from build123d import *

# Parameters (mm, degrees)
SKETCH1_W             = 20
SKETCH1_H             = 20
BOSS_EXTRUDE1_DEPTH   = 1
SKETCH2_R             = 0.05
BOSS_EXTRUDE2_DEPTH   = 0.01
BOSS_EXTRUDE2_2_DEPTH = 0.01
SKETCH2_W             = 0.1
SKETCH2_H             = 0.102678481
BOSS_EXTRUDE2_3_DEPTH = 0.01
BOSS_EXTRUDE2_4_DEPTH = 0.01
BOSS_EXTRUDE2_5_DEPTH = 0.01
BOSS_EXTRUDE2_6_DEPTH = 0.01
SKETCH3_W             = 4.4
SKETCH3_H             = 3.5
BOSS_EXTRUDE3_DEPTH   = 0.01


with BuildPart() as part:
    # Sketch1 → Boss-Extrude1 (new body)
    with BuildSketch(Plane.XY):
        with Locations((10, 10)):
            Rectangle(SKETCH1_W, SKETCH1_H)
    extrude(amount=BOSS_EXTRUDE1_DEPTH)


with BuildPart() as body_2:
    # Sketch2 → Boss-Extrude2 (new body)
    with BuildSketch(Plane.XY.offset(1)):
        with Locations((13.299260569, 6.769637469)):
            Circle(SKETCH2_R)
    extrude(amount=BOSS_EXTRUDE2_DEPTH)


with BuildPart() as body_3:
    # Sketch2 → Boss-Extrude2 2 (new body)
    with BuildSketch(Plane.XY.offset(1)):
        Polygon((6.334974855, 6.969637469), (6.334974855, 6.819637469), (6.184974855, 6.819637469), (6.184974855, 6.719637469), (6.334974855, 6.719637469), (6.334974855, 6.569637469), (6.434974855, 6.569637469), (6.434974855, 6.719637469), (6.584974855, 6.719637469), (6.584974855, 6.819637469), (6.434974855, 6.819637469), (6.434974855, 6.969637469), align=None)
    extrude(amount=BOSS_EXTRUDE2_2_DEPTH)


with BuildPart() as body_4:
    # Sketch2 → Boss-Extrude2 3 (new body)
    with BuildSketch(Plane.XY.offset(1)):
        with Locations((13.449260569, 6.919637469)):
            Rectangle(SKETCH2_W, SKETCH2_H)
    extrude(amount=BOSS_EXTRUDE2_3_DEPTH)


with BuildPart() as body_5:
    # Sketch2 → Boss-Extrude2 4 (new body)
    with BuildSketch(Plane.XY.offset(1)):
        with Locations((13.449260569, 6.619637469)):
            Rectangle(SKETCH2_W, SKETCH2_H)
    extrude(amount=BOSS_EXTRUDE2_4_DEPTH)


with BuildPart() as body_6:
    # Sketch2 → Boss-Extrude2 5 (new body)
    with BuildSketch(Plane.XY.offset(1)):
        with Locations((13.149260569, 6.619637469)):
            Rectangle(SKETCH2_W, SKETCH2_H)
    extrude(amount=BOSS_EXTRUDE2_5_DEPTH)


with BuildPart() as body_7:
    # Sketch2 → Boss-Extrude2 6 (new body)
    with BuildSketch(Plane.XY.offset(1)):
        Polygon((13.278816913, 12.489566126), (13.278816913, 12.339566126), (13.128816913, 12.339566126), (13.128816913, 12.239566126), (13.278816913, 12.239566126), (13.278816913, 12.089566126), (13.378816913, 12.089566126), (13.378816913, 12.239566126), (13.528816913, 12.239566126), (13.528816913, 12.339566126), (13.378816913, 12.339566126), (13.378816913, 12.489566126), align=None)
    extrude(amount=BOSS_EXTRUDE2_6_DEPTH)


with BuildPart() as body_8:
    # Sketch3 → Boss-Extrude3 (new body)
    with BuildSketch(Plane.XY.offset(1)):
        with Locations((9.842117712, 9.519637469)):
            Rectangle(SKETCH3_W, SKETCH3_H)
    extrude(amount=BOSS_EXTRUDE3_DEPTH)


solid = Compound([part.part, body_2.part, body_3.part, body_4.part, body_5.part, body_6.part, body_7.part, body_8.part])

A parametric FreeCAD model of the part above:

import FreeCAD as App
import Part
import Sketcher
from FreeCAD import Vector

doc = App.newDocument("Part")
body = doc.addObject("PartDesign::Body", "Body")

# Sketch on XY plane
sketch1 = doc.addObject("Sketcher::SketchObject", "Sketch")
body.addObject(sketch1)
sketch1.AttachmentSupport = (doc.XY_Plane, [""])
sketch1.MapMode = "FlatFace"
sketch1.addGeometry([
    Part.LineSegment(Vector(0, 20, 0), Vector(0, 0, 0)),
    Part.LineSegment(Vector(0, 0, 0), Vector(20, 0, 0)),
    Part.LineSegment(Vector(20, 0, 0), Vector(20, 20, 0)),
    Part.LineSegment(Vector(20, 20, 0), Vector(0, 20, 0)),
], False)
sketch1.addConstraint([
    Sketcher.Constraint("Coincident", 0, 2, 1, 1),
    Sketcher.Constraint("Coincident", 1, 2, 2, 1),
    Sketcher.Constraint("Coincident", 2, 2, 3, 1),
    Sketcher.Constraint("Coincident", 3, 2, 0, 1),
    Sketcher.Constraint("Vertical", 0),
    Sketcher.Constraint("Horizontal", 1),
    Sketcher.Constraint("Vertical", 2),
    Sketcher.Constraint("Horizontal", 3),
    Sketcher.Constraint("Coincident", 0, 2, -1, 1),
    Sketcher.Constraint("Equal", 3, 0),
    Sketcher.Constraint("DistanceX", 1, 1, 1, 2, 20.0),
])
pad1 = doc.addObject("PartDesign::Pad", "Pad")
body.addObject(pad1)
pad1.Profile = sketch1
pad1.Length = 1
body2 = doc.addObject("PartDesign::Body", "Body001")

# Sketch on XY plane
sketch2 = doc.addObject("Sketcher::SketchObject", "Sketch001")
body2.addObject(sketch2)
sketch2.AttachmentSupport = (doc.getObject("XY_Plane001"), [""])
sketch2.MapMode = "FlatFace"
sketch2.AttachmentOffset = App.Placement(Vector(0, 0, 1), App.Rotation())
sketch2.addGeometry(Part.Circle(Vector(13.299261, 6.769637, 0), Vector(0, 0, 1), 0.05), False)
sketch2.addConstraint([
    Sketcher.Constraint("Diameter", 0, 0.1),
    Sketcher.Constraint("DistanceX", -1, 1, 0, 3, 13.299261),
    Sketcher.Constraint("DistanceY", -1, 1, 0, 3, 6.769637),
])
pad2 = doc.addObject("PartDesign::Pad", "Pad001")
body2.addObject(pad2)
pad2.Profile = sketch2
pad2.Length = 0.01
body3 = doc.addObject("PartDesign::Body", "Body002")

# Sketch on XY plane
sketch3 = doc.addObject("Sketcher::SketchObject", "Sketch002")
body3.addObject(sketch3)
sketch3.AttachmentSupport = (doc.getObject("XY_Plane002"), [""])
sketch3.MapMode = "FlatFace"
sketch3.AttachmentOffset = App.Placement(Vector(0, 0, 1), App.Rotation())
sketch3.addGeometry([
    Part.LineSegment(Vector(6.334975, 6.969637, 0), Vector(6.334975, 6.819637, 0)),  # 0
    Part.LineSegment(Vector(6.334975, 6.819637, 0), Vector(6.184975, 6.819637, 0)),  # 1
    Part.LineSegment(Vector(6.184975, 6.819637, 0), Vector(6.184975, 6.719637, 0)),  # 2
    Part.LineSegment(Vector(6.184975, 6.719637, 0), Vector(6.334975, 6.719637, 0)),  # 3
    Part.LineSegment(Vector(6.334975, 6.719637, 0), Vector(6.334975, 6.569637, 0)),  # 4
    Part.LineSegment(Vector(6.334975, 6.569637, 0), Vector(6.434975, 6.569637, 0)),  # 5
    Part.LineSegment(Vector(6.434975, 6.569637, 0), Vector(6.434975, 6.719637, 0)),  # 6
    Part.LineSegment(Vector(6.434975, 6.719637, 0), Vector(6.584975, 6.719637, 0)),  # 7
    Part.LineSegment(Vector(6.584975, 6.719637, 0), Vector(6.584975, 6.819637, 0)),  # 8
    Part.LineSegment(Vector(6.584975, 6.819637, 0), Vector(6.434975, 6.819637, 0)),  # 9
    Part.LineSegment(Vector(6.434975, 6.819637, 0), Vector(6.434975, 6.969637, 0)),  # 10
    Part.LineSegment(Vector(6.434975, 6.969637, 0), Vector(6.334975, 6.969637, 0)),  # 11
], False)
sketch3.addConstraint([
    Sketcher.Constraint("Coincident", 0, 2, 1, 1),
    Sketcher.Constraint("Coincident", 1, 2, 2, 1),
    Sketcher.Constraint("Coincident", 2, 2, 3, 1),
    Sketcher.Constraint("Coincident", 3, 2, 4, 1),
    Sketcher.Constraint("Coincident", 4, 2, 5, 1),
    Sketcher.Constraint("Coincident", 5, 2, 6, 1),
    Sketcher.Constraint("Coincident", 6, 2, 7, 1),
    Sketcher.Constraint("Coincident", 7, 2, 8, 1),
    Sketcher.Constraint("Coincident", 8, 2, 9, 1),
    Sketcher.Constraint("Coincident", 9, 2, 10, 1),
    Sketcher.Constraint("Coincident", 10, 2, 11, 1),
    Sketcher.Constraint("Coincident", 11, 2, 0, 1),
    Sketcher.Constraint("Vertical", 0),
    Sketcher.Constraint("Horizontal", 1),
    Sketcher.Constraint("Vertical", 2),
    Sketcher.Constraint("Horizontal", 3),
    Sketcher.Constraint("Vertical", 4),
    Sketcher.Constraint("Horizontal", 5),
    Sketcher.Constraint("Vertical", 6),
    Sketcher.Constraint("Horizontal", 7),
    Sketcher.Constraint("Vertical", 8),
    Sketcher.Constraint("Horizontal", 9),
    Sketcher.Constraint("Vertical", 10),
    Sketcher.Constraint("Horizontal", 11),
    Sketcher.Constraint("Horizontal", 3, 2, 6, 2),
    Sketcher.Constraint("Horizontal", 1, 2, 8, 2),
    Sketcher.Constraint("Vertical", 0, 2, 3, 2),
    Sketcher.Constraint("Vertical", 6, 2, 9, 2),
    Sketcher.Constraint("Equal", 3, 7),
    Sketcher.Constraint("Equal", 9, 0),
    Sketcher.Constraint("Equal", 11, 2),
    Sketcher.Constraint("Equal", 0, 4),
    Sketcher.Constraint("DistanceX", 5, 1, 5, 2, 0.1),
    Sketcher.Constraint("DistanceX", 1, 2, 1, 1, 0.15),
    Sketcher.Constraint("DistanceX", -1, 1, 0, 2, 6.334975),
    Sketcher.Constraint("DistanceY", -1, 1, 0, 2, 6.819637),
])
pad3 = doc.addObject("PartDesign::Pad", "Pad002")
body3.addObject(pad3)
pad3.Profile = sketch3
pad3.Length = 0.01
body4 = doc.addObject("PartDesign::Body", "Body003")

# Sketch on XY plane
sketch4 = doc.addObject("Sketcher::SketchObject", "Sketch003")
body4.addObject(sketch4)
sketch4.AttachmentSupport = (doc.getObject("XY_Plane003"), [""])
sketch4.MapMode = "FlatFace"
sketch4.AttachmentOffset = App.Placement(Vector(0, 0, 1), App.Rotation())
sketch4.addGeometry([
    Part.LineSegment(Vector(13.399261, 6.970977, 0), Vector(13.399261, 6.868298, 0)),
    Part.LineSegment(Vector(13.399261, 6.868298, 0), Vector(13.499261, 6.868298, 0)),
    Part.LineSegment(Vector(13.499261, 6.868298, 0), Vector(13.499261, 6.970977, 0)),
    Part.LineSegment(Vector(13.499261, 6.970977, 0), Vector(13.399261, 6.970977, 0)),
], False)
sketch4.addConstraint([
    Sketcher.Constraint("Coincident", 0, 2, 1, 1),
    Sketcher.Constraint("Coincident", 1, 2, 2, 1),
    Sketcher.Constraint("Coincident", 2, 2, 3, 1),
    Sketcher.Constraint("Coincident", 3, 2, 0, 1),
    Sketcher.Constraint("Vertical", 0),
    Sketcher.Constraint("Horizontal", 1),
    Sketcher.Constraint("Vertical", 2),
    Sketcher.Constraint("Horizontal", 3),
    Sketcher.Constraint("DistanceX", 1, 1, 1, 2, 0.1),
    Sketcher.Constraint("DistanceY", 0, 2, 0, 1, 0.102678),
    Sketcher.Constraint("DistanceY", -1, 1, 0, 2, 6.868298),
    Sketcher.Constraint("DistanceX", -1, 1, 0, 2, 13.399261),
])
pad4 = doc.addObject("PartDesign::Pad", "Pad003")
body4.addObject(pad4)
pad4.Profile = sketch4
pad4.Length = 0.01
body5 = doc.addObject("PartDesign::Body", "Body004")

# Sketch on XY plane
sketch5 = doc.addObject("Sketcher::SketchObject", "Sketch004")
body5.addObject(sketch5)
sketch5.AttachmentSupport = (doc.getObject("XY_Plane004"), [""])
sketch5.MapMode = "FlatFace"
sketch5.AttachmentOffset = App.Placement(Vector(0, 0, 1), App.Rotation())
sketch5.addGeometry([
    Part.LineSegment(Vector(13.399261, 6.670977, 0), Vector(13.399261, 6.568298, 0)),
    Part.LineSegment(Vector(13.399261, 6.568298, 0), Vector(13.499261, 6.568298, 0)),
    Part.LineSegment(Vector(13.499261, 6.568298, 0), Vector(13.499261, 6.670977, 0)),
    Part.LineSegment(Vector(13.499261, 6.670977, 0), Vector(13.399261, 6.670977, 0)),
], False)
sketch5.addConstraint([
    Sketcher.Constraint("Coincident", 0, 2, 1, 1),
    Sketcher.Constraint("Coincident", 1, 2, 2, 1),
    Sketcher.Constraint("Coincident", 2, 2, 3, 1),
    Sketcher.Constraint("Coincident", 3, 2, 0, 1),
    Sketcher.Constraint("Vertical", 0),
    Sketcher.Constraint("Horizontal", 1),
    Sketcher.Constraint("Vertical", 2),
    Sketcher.Constraint("Horizontal", 3),
    Sketcher.Constraint("DistanceX", 1, 1, 1, 2, 0.1),
    Sketcher.Constraint("DistanceY", 0, 2, 0, 1, 0.102678),
    Sketcher.Constraint("DistanceY", -1, 1, 0, 2, 6.568298),
    Sketcher.Constraint("DistanceX", -1, 1, 0, 2, 13.399261),
])
pad5 = doc.addObject("PartDesign::Pad", "Pad004")
body5.addObject(pad5)
pad5.Profile = sketch5
pad5.Length = 0.01
body6 = doc.addObject("PartDesign::Body", "Body005")

# Sketch on XY plane
sketch6 = doc.addObject("Sketcher::SketchObject", "Sketch005")
body6.addObject(sketch6)
sketch6.AttachmentSupport = (doc.getObject("XY_Plane005"), [""])
sketch6.MapMode = "FlatFace"
sketch6.AttachmentOffset = App.Placement(Vector(0, 0, 1), App.Rotation())
sketch6.addGeometry([
    Part.LineSegment(Vector(13.099261, 6.670977, 0), Vector(13.099261, 6.568298, 0)),
    Part.LineSegment(Vector(13.099261, 6.568298, 0), Vector(13.199261, 6.568298, 0)),
    Part.LineSegment(Vector(13.199261, 6.568298, 0), Vector(13.199261, 6.670977, 0)),
    Part.LineSegment(Vector(13.199261, 6.670977, 0), Vector(13.099261, 6.670977, 0)),
], False)
sketch6.addConstraint([
    Sketcher.Constraint("Coincident", 0, 2, 1, 1),
    Sketcher.Constraint("Coincident", 1, 2, 2, 1),
    Sketcher.Constraint("Coincident", 2, 2, 3, 1),
    Sketcher.Constraint("Coincident", 3, 2, 0, 1),
    Sketcher.Constraint("Vertical", 0),
    Sketcher.Constraint("Horizontal", 1),
    Sketcher.Constraint("Vertical", 2),
    Sketcher.Constraint("Horizontal", 3),
    Sketcher.Constraint("DistanceX", 1, 1, 1, 2, 0.1),
    Sketcher.Constraint("DistanceY", 0, 2, 0, 1, 0.102678),
    Sketcher.Constraint("DistanceY", -1, 1, 0, 2, 6.568298),
    Sketcher.Constraint("DistanceX", -1, 1, 0, 2, 13.099261),
])
pad6 = doc.addObject("PartDesign::Pad", "Pad005")
body6.addObject(pad6)
pad6.Profile = sketch6
pad6.Length = 0.01
body7 = doc.addObject("PartDesign::Body", "Body006")

# Sketch on XY plane
sketch7 = doc.addObject("Sketcher::SketchObject", "Sketch006")
body7.addObject(sketch7)
sketch7.AttachmentSupport = (doc.getObject("XY_Plane006"), [""])
sketch7.MapMode = "FlatFace"
sketch7.AttachmentOffset = App.Placement(Vector(0, 0, 1), App.Rotation())
sketch7.addGeometry([
    Part.LineSegment(Vector(13.278817, 12.489566, 0), Vector(13.278817, 12.339566, 0)),  # 0
    Part.LineSegment(Vector(13.278817, 12.339566, 0), Vector(13.128817, 12.339566, 0)),  # 1
    Part.LineSegment(Vector(13.128817, 12.339566, 0), Vector(13.128817, 12.239566, 0)),  # 2
    Part.LineSegment(Vector(13.128817, 12.239566, 0), Vector(13.278817, 12.239566, 0)),  # 3
    Part.LineSegment(Vector(13.278817, 12.239566, 0), Vector(13.278817, 12.089566, 0)),  # 4
    Part.LineSegment(Vector(13.278817, 12.089566, 0), Vector(13.378817, 12.089566, 0)),  # 5
    Part.LineSegment(Vector(13.378817, 12.089566, 0), Vector(13.378817, 12.239566, 0)),  # 6
    Part.LineSegment(Vector(13.378817, 12.239566, 0), Vector(13.528817, 12.239566, 0)),  # 7
    Part.LineSegment(Vector(13.528817, 12.239566, 0), Vector(13.528817, 12.339566, 0)),  # 8
    Part.LineSegment(Vector(13.528817, 12.339566, 0), Vector(13.378817, 12.339566, 0)),  # 9
    Part.LineSegment(Vector(13.378817, 12.339566, 0), Vector(13.378817, 12.489566, 0)),  # 10
    Part.LineSegment(Vector(13.378817, 12.489566, 0), Vector(13.278817, 12.489566, 0)),  # 11
], False)
sketch7.addConstraint([
    Sketcher.Constraint("Coincident", 0, 2, 1, 1),
    Sketcher.Constraint("Coincident", 1, 2, 2, 1),
    Sketcher.Constraint("Coincident", 2, 2, 3, 1),
    Sketcher.Constraint("Coincident", 3, 2, 4, 1),
    Sketcher.Constraint("Coincident", 4, 2, 5, 1),
    Sketcher.Constraint("Coincident", 5, 2, 6, 1),
    Sketcher.Constraint("Coincident", 6, 2, 7, 1),
    Sketcher.Constraint("Coincident", 7, 2, 8, 1),
    Sketcher.Constraint("Coincident", 8, 2, 9, 1),
    Sketcher.Constraint("Coincident", 9, 2, 10, 1),
    Sketcher.Constraint("Coincident", 10, 2, 11, 1),
    Sketcher.Constraint("Coincident", 11, 2, 0, 1),
    Sketcher.Constraint("Vertical", 0),
    Sketcher.Constraint("Horizontal", 1),
    Sketcher.Constraint("Vertical", 2),
    Sketcher.Constraint("Horizontal", 3),
    Sketcher.Constraint("Vertical", 4),
    Sketcher.Constraint("Horizontal", 5),
    Sketcher.Constraint("Vertical", 6),
    Sketcher.Constraint("Horizontal", 7),
    Sketcher.Constraint("Vertical", 8),
    Sketcher.Constraint("Horizontal", 9),
    Sketcher.Constraint("Vertical", 10),
    Sketcher.Constraint("Horizontal", 11),
    Sketcher.Constraint("Horizontal", 3, 2, 6, 2),
    Sketcher.Constraint("Horizontal", 1, 2, 8, 2),
    Sketcher.Constraint("Vertical", 0, 2, 3, 2),
    Sketcher.Constraint("Vertical", 6, 2, 9, 2),
    Sketcher.Constraint("Equal", 3, 7),
    Sketcher.Constraint("Equal", 9, 0),
    Sketcher.Constraint("Equal", 11, 2),
    Sketcher.Constraint("Equal", 0, 4),
    Sketcher.Constraint("DistanceX", 5, 1, 5, 2, 0.1),
    Sketcher.Constraint("DistanceX", 1, 2, 1, 1, 0.15),
    Sketcher.Constraint("DistanceX", -1, 1, 0, 2, 13.278817),
    Sketcher.Constraint("DistanceY", -1, 1, 0, 2, 12.339566),
])
pad7 = doc.addObject("PartDesign::Pad", "Pad006")
body7.addObject(pad7)
pad7.Profile = sketch7
pad7.Length = 0.01
body8 = doc.addObject("PartDesign::Body", "Body007")

# Sketch on XY plane
sketch8 = doc.addObject("Sketcher::SketchObject", "Sketch007")
body8.addObject(sketch8)
sketch8.AttachmentSupport = (doc.getObject("XY_Plane007"), [""])
sketch8.MapMode = "FlatFace"
sketch8.AttachmentOffset = App.Placement(Vector(0, 0, 1), App.Rotation())
sketch8.addGeometry([
    Part.LineSegment(Vector(7.642118, 11.269637, 0), Vector(7.642118, 7.769637, 0)),
    Part.LineSegment(Vector(7.642118, 7.769637, 0), Vector(12.042118, 7.769637, 0)),
    Part.LineSegment(Vector(12.042118, 7.769637, 0), Vector(12.042118, 11.269637, 0)),
    Part.LineSegment(Vector(12.042118, 11.269637, 0), Vector(7.642118, 11.269637, 0)),
], False)
sketch8.addConstraint([
    Sketcher.Constraint("Coincident", 0, 2, 1, 1),
    Sketcher.Constraint("Coincident", 1, 2, 2, 1),
    Sketcher.Constraint("Coincident", 2, 2, 3, 1),
    Sketcher.Constraint("Coincident", 3, 2, 0, 1),
    Sketcher.Constraint("Vertical", 0),
    Sketcher.Constraint("Horizontal", 1),
    Sketcher.Constraint("Vertical", 2),
    Sketcher.Constraint("Horizontal", 3),
    Sketcher.Constraint("DistanceX", 1, 1, 1, 2, 4.4),
    Sketcher.Constraint("DistanceY", 0, 2, 0, 1, 3.5),
    Sketcher.Constraint("DistanceX", -1, 1, 0, 2, 7.642118),
    Sketcher.Constraint("DistanceY", -1, 1, 0, 2, 7.769637),
])
pad8 = doc.addObject("PartDesign::Pad", "Pad007")
body8.addObject(pad8)
pad8.Profile = sketch8
pad8.Length = 0.01

doc.recompute()
